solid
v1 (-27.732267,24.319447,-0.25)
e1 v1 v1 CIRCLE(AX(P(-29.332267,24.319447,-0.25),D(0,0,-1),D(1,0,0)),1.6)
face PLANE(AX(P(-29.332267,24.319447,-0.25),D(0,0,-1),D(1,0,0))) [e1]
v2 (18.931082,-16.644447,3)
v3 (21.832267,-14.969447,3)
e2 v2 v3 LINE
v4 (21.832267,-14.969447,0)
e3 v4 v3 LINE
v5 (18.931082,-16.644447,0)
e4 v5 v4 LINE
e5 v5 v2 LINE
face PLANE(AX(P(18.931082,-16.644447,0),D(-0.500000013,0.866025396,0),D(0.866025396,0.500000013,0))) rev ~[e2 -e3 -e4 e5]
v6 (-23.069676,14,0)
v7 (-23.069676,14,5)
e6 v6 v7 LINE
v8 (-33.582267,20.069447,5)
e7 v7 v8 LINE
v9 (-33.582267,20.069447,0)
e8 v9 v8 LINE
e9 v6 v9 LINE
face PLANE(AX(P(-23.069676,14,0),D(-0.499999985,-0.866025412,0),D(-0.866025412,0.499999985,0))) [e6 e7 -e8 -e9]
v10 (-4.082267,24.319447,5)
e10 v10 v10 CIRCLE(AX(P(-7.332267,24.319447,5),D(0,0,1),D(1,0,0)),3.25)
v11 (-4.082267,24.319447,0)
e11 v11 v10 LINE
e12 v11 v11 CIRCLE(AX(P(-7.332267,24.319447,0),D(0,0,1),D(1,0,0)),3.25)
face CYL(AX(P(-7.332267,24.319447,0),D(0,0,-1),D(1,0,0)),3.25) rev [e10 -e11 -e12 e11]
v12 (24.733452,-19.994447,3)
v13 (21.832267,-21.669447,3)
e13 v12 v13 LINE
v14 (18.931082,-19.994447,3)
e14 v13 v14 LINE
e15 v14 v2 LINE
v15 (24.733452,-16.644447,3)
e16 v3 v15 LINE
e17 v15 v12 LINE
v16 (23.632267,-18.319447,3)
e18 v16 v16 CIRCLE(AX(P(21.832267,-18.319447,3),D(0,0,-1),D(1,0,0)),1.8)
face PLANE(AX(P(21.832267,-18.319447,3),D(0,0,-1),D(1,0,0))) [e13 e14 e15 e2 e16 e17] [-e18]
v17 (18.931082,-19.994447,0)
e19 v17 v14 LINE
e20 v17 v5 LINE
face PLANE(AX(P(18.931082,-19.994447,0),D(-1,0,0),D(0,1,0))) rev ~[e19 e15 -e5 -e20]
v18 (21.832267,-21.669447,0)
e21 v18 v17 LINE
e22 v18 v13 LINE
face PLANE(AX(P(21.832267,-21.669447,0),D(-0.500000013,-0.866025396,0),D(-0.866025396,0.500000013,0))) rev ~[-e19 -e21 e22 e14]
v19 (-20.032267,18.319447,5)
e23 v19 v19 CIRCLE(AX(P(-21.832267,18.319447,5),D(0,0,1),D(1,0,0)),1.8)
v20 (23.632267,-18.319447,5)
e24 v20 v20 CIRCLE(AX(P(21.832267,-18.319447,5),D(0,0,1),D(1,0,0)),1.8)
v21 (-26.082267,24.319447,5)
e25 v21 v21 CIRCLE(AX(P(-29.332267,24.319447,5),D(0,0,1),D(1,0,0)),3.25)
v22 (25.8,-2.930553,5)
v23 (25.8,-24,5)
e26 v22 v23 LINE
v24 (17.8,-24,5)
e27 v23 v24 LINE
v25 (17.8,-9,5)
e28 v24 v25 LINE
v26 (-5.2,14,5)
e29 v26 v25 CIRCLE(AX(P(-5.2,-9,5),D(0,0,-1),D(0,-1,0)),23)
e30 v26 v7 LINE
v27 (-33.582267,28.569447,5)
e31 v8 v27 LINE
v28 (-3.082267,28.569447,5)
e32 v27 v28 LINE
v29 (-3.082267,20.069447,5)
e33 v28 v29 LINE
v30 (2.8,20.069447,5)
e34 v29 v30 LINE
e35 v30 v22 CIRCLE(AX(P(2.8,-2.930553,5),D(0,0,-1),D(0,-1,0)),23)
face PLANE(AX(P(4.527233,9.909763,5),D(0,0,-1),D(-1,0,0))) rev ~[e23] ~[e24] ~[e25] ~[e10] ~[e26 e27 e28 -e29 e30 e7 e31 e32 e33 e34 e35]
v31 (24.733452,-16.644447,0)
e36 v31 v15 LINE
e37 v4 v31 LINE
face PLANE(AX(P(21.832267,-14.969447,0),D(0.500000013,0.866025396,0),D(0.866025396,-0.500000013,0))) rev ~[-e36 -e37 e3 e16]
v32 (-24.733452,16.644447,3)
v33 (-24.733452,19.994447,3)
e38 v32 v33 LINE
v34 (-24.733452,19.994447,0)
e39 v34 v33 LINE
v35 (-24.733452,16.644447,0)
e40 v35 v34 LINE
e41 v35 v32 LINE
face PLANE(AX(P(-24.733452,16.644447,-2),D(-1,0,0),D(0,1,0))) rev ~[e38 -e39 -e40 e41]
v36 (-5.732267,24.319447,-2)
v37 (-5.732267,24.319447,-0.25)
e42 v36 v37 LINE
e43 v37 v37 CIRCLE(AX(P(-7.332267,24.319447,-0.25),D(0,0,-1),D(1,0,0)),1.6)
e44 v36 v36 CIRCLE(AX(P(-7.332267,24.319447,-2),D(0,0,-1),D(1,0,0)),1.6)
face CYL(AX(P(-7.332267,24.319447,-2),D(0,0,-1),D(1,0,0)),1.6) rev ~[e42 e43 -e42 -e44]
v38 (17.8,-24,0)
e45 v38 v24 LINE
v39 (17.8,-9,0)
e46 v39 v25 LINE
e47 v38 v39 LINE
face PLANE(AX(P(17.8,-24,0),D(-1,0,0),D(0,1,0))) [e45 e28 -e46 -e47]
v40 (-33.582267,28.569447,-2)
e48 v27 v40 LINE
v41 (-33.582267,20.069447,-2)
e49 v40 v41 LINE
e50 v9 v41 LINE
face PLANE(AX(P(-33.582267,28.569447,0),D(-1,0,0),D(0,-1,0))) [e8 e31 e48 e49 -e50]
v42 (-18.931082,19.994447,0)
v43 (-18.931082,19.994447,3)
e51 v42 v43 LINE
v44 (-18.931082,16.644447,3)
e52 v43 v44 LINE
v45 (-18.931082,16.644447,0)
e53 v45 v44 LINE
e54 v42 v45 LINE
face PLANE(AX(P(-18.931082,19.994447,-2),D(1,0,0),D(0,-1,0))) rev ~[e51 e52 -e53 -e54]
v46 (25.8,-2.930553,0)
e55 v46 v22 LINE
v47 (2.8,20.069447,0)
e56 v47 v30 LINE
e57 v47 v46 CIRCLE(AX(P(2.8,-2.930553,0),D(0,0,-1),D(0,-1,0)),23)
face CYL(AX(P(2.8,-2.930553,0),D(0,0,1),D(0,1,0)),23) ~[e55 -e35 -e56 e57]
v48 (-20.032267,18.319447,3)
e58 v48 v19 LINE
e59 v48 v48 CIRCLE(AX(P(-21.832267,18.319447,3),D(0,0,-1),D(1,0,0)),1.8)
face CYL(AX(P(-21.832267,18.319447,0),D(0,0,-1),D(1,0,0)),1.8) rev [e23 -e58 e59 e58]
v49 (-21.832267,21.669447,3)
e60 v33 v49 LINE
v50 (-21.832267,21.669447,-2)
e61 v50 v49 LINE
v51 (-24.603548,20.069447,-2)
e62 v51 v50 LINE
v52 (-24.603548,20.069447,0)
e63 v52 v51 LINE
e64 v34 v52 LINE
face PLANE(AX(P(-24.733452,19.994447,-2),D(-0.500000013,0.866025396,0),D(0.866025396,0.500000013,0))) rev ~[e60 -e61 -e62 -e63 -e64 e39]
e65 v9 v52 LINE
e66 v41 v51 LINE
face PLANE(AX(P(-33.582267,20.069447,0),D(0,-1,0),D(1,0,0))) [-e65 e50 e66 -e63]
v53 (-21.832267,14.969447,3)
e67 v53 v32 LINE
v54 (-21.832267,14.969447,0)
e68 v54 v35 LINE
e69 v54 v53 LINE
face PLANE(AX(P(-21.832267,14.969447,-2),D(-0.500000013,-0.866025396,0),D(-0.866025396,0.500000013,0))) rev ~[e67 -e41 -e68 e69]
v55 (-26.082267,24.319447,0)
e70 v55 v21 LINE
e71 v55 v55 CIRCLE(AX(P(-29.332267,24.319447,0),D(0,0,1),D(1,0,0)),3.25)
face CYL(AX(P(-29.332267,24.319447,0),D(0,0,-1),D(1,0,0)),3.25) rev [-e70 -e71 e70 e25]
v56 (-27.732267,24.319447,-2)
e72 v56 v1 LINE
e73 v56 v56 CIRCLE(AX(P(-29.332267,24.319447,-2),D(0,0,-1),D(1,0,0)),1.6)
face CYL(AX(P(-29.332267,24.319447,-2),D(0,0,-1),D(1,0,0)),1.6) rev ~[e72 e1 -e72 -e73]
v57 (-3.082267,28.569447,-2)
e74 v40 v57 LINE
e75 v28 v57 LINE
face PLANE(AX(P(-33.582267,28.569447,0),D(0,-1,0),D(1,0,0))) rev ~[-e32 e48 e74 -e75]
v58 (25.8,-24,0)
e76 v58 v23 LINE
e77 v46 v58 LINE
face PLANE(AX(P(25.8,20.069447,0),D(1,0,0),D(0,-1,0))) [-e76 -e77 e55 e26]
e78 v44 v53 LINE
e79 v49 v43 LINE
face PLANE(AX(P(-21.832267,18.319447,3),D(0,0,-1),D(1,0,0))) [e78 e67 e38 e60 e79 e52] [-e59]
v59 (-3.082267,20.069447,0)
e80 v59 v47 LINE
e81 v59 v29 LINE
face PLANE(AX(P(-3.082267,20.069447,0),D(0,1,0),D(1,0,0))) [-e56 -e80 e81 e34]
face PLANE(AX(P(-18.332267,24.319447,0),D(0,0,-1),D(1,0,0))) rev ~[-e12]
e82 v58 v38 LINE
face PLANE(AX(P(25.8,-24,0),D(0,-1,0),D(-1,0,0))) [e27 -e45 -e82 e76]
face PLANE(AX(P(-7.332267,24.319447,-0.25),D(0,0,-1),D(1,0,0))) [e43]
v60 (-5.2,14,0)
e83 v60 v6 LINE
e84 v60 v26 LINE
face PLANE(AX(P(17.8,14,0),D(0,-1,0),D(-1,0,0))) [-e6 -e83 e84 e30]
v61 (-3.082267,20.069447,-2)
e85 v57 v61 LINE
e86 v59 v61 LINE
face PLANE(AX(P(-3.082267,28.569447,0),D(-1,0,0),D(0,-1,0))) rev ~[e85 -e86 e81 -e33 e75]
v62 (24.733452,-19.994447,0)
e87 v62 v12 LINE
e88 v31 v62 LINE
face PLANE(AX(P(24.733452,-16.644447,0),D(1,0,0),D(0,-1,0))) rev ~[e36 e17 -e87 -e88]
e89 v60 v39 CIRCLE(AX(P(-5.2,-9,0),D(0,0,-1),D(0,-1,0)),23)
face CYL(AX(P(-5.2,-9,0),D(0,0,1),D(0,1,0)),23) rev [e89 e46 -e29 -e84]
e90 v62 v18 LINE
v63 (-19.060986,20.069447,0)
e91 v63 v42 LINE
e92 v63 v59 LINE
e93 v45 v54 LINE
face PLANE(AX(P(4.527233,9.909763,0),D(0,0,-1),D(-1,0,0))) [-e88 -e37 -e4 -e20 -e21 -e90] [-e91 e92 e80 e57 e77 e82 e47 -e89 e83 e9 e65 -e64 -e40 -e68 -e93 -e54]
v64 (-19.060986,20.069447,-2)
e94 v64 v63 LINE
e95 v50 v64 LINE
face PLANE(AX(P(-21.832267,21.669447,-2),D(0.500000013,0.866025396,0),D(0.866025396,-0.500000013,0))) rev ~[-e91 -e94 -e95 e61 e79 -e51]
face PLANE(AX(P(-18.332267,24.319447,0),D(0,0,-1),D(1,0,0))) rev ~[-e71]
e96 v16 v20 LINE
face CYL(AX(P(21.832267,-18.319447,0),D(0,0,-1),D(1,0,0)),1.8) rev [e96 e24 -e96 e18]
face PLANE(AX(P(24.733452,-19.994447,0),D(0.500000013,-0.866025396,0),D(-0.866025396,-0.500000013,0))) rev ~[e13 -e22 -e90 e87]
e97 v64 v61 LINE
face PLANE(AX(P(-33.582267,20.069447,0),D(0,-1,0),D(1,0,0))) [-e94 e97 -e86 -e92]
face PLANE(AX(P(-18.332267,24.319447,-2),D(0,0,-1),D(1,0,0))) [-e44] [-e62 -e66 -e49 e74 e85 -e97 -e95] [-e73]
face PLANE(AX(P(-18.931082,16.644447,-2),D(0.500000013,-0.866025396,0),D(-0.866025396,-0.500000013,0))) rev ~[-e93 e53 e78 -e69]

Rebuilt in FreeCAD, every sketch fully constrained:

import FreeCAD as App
import Part
import Sketcher
Q = App.Units.Quantity


def edges_at(feature, points):
    """Names of the edges that pass closest to the given points."""
    edges = feature.Shape.Edges
    near = lambda p: min(range(len(edges)), key=lambda i: edges[i].distToShape(Part.Vertex(*p))[0])
    return sorted({f"Edge{near(p) + 1}" for p in points})

doc = App.newDocument("Part")
params = doc.addObject("Spreadsheet::Sheet", "Params")
for row, (alias, value) in enumerate([
    ("sketch1_diameter", "3.6 mm"),
    ("sketch1_diameter2", "6.5 mm"),
    ("sketch1_width", "8 mm"),
    ("sketch1_height", "38 mm"),
    ("sketch1_width2", "30.5 mm"),
    ("pad1_length", "5 mm"),
    ("fillet_radius", "23 mm"),
    ("sketch2_width", "30.5 mm"),
    ("sketch2_height", "8.5 mm"),
    ("pad2_length", "2 mm"),
    ("sketch3_diameter", "3.2 mm"),
    ("pocket1_length", "1.75 mm"),
    ("sketch4_height", "3.35 mm"),
    ("pocket2_length", "3 mm"),
    ("sketch5_height", "3.35 mm"),
    ("pocket3_length", "5 mm"),
], start=1):
    params.set(f"A{row}", alias)
    params.set(f"B{row}", "=" + value)
    params.setAlias(f"B{row}", alias)

body = doc.addObject("PartDesign::Body", "Body")

sketch1 = body.newObject("Sketcher::SketchObject", "Sketch")
sketch1.AttachmentSupport = (doc.getObject("XY_Plane"), [""])
sketch1.MapMode = "FlatFace"
sketch1.addGeometry([
    Part.LineSegment(App.Vector(-3.1, 28.6, 0), App.Vector(-33.6, 28.6, 0)),
    Part.LineSegment(App.Vector(-33.6, 28.6, 0), App.Vector(-33.6, 20.1, 0)),
    Part.LineSegment(App.Vector(-33.6, 20.1, 0), App.Vector(-23.1, 14, 0)),
    Part.LineSegment(App.Vector(-23.1, 14, 0), App.Vector(17.8, 14, 0)),
    Part.LineSegment(App.Vector(17.8, 14, 0), App.Vector(17.8, -24, 0)),
    Part.LineSegment(App.Vector(17.8, -24, 0), App.Vector(25.8, -24, 0)),
    Part.LineSegment(App.Vector(25.8, -24, 0), App.Vector(25.8, 20.1, 0)),
    Part.LineSegment(App.Vector(25.8, 20.1, 0), App.Vector(-3.1, 20.1, 0)),
    Part.LineSegment(App.Vector(-3.1, 20.1, 0), App.Vector(-3.1, 28.6, 0)),
    Part.Circle(App.Vector(21.8, -18.3, 0), App.Vector(0, 0, 1), 1.8),
    Part.Circle(App.Vector(-7.3, 24.3, 0), App.Vector(0, 0, 1), 3.2),
    Part.Circle(App.Vector(-21.8, 18.3, 0), App.Vector(0, 0, 1), 1.8),
    Part.Circle(App.Vector(-29.3, 24.3, 0), App.Vector(0, 0, 1), 3.2),
], False)
sketch1.addConstraint([
    Sketcher.Constraint("Coincident", 0, 2, 1, 1),
    Sketcher.Constraint("Coincident", 1, 2, 2, 1),
    Sketcher.Constraint("Coincident", 2, 2, 3, 1),
    Sketcher.Constraint("Coincident", 3, 2, 4, 1),
    Sketcher.Constraint("Coincident", 4, 2, 5, 1),
    Sketcher.Constraint("Coincident", 5, 2, 6, 1),
    Sketcher.Constraint("Coincident", 6, 2, 7, 1),
    Sketcher.Constraint("Coincident", 7, 2, 8, 1),
    Sketcher.Constraint("Coincident", 8, 2, 0, 1),
    Sketcher.Constraint("Horizontal", 0),
    Sketcher.Constraint("Vertical", 1),
    Sketcher.Constraint("Horizontal", 3),
    Sketcher.Constraint("Vertical", 4),
    Sketcher.Constraint("Horizontal", 5),
    Sketcher.Constraint("Vertical", 6),
    Sketcher.Constraint("Horizontal", 7),
    Sketcher.Constraint("Vertical", 8),
    Sketcher.Constraint("Equal", 9, 11),
    Sketcher.Constraint("Equal", 10, 12),
    Sketcher.Constraint("Symmetric", 9, 3, 11, 3, -1, 1),
    Sketcher.Constraint("Horizontal", 10, 3, 12, 3),
    Sketcher.Constraint("Horizontal", 1, 2, 6, 2),
    Sketcher.Constraint("Diameter", 9, 3.6),
    Sketcher.Constraint("Diameter", 10, 6.5),
    Sketcher.Constraint("DistanceX", 5, 1, 5, 2, 8.0),
    Sketcher.Constraint("DistanceY", 4, 2, 4, 1, 38.0),
    Sketcher.Constraint("Angle", 2, Q("-29.999999 deg")),
    Sketcher.Constraint("DistanceX", 0, 2, 0, 1, 30.5),
    Sketcher.Constraint("DistanceY", 1, 2, 1, 1, 8.5),
    Sketcher.Constraint("DistanceY", -1, 1, 2, 2, 14.0),
    Sketcher.Constraint("DistanceY", 11, 3, 10, 3, 6.0),
    Sketcher.Constraint("DistanceX", 12, 3, 10, 3, 22.0),
    Sketcher.Constraint("DistanceX", -1, 1, 3, 2, 17.8),
    Sketcher.Constraint("DistanceX", 11, 3, 10, 3, 14.5),
    Sketcher.Constraint("DistanceX", 0, 2, 12, 3, 4.25),
    Sketcher.Constraint("DistanceY", 12, 3, 0, 2, 4.25),
    Sketcher.Constraint("DistanceX", 3, 1, 3, 2, 40.869676),
    Sketcher.Constraint("DistanceX", 7, 2, 7, 1, 28.882267),
])
sketch1.setExpression("Constraints[22]", "Params.sketch1_diameter")
sketch1.setExpression("Constraints[23]", "Params.sketch1_diameter2")
sketch1.setExpression("Constraints[24]", "Params.sketch1_width")
sketch1.setExpression("Constraints[25]", "Params.sketch1_height")
sketch1.setExpression("Constraints[27]", "Params.sketch1_width2")
pad1 = body.newObject("PartDesign::Pad", "Pad")
pad1.Profile = sketch1
pad1.setExpression("Length", "Params.pad1_length")
doc.recompute()

fillet = body.newObject("PartDesign::Fillet", "Fillet")
fillet.Base = (pad1, edges_at(pad1, [(25.8, 20.069, 2.5), (17.8, 14, 2.5)]))
fillet.setExpression("Radius", "Params.fillet_radius")

sketch2 = body.newObject("Sketcher::SketchObject", "Sketch001")
sketch2.AttachmentSupport = (doc.getObject("XY_Plane"), [""])
sketch2.MapMode = "FlatFace"
sketch2.addGeometry([
    Part.LineSegment(App.Vector(-34, 20, 0), App.Vector(-34, 29, 0)),
    Part.LineSegment(App.Vector(-34, 29, 0), App.Vector(-3, 29, 0)),
    Part.LineSegment(App.Vector(-3, 29, 0), App.Vector(-3, 20, 0)),
    Part.LineSegment(App.Vector(-3, 20, 0), App.Vector(-34, 20, 0)),
], False)
sketch2.addConstraint([
    Sketcher.Constraint("Coincident", 0, 2, 1, 1),
    Sketcher.Constraint("Coincident", 1, 2, 2, 1),
    Sketcher.Constraint("Coincident", 2, 2, 3, 1),
    Sketcher.Constraint("Coincident", 3, 2, 0, 1),
    Sketcher.Constraint("Vertical", 0),
    Sketcher.Constraint("Horizontal", 1),
    Sketcher.Constraint("Vertical", 2),
    Sketcher.Constraint("Horizontal", 3),
    Sketcher.Constraint("DistanceX", 1, 1, 1, 2, 30.5),
    Sketcher.Constraint("DistanceY", 0, 1, 0, 2, 8.5),
    Sketcher.Constraint("DistanceX", 0, 2, -1, 1, 33.582267),
    Sketcher.Constraint("DistanceY", -1, 1, 0, 2, 28.569447),
])
sketch2.setExpression("Constraints[8]", "Params.sketch2_width")
sketch2.setExpression("Constraints[9]", "Params.sketch2_height")
pad2 = body.newObject("PartDesign::Pad", "Pad001")
pad2.Profile = sketch2
pad2.setExpression("Length", "Params.pad2_length")
pad2.Reversed = True

sketch3 = body.newObject("Sketcher::SketchObject", "Sketch002")
sketch3.AttachmentSupport = (doc.getObject("XY_Plane"), [""])
sketch3.MapMode = "FlatFace"
sketch3.AttachmentOffset = App.Placement(App.Vector(0, 0, -2), App.Rotation())
sketch3.addGeometry([
    Part.Circle(App.Vector(-29.3, 24.3, 0), App.Vector(0, 0, 1), 1.6),
    Part.Circle(App.Vector(-7.3, 24.3, 0), App.Vector(0, 0, 1), 1.6),
], False)
sketch3.addConstraint([
    Sketcher.Constraint("Equal", 0, 1),
    Sketcher.Constraint("Horizontal", 0, 3, 1, 3),
    Sketcher.Constraint("Diameter", 0, 3.2),
    Sketcher.Constraint("DistanceX", 0, 3, 1, 3, 22.0),
    Sketcher.Constraint("DistanceX", 0, 3, -1, 1, 29.332267),
    Sketcher.Constraint("DistanceY", -1, 1, 0, 3, 24.319447),
])
sketch3.setExpression("Constraints[2]", "Params.sketch3_diameter")
pocket1 = body.newObject("PartDesign::Pocket", "Pocket")
pocket1.Profile = sketch3
pocket1.setExpression("Length", "Params.pocket1_length")
pocket1.Reversed = True

sketch4 = body.newObject("Sketcher::SketchObject", "Sketch003")
sketch4.AttachmentSupport = (doc.getObject("XY_Plane"), [""])
sketch4.MapMode = "FlatFace"
sketch4.addGeometry([
    Part.LineSegment(App.Vector(24.7, -16.6, 0), App.Vector(24.7, -20, 0)),
    Part.LineSegment(App.Vector(24.7, -20, 0), App.Vector(21.8, -21.7, 0)),
    Part.LineSegment(App.Vector(21.8, -21.7, 0), App.Vector(18.9, -20, 0)),
    Part.LineSegment(App.Vector(18.9, -20, 0), App.Vector(18.9, -16.6, 0)),
    Part.LineSegment(App.Vector(18.9, -16.6, 0), App.Vector(21.8, -15, 0)),
    Part.LineSegment(App.Vector(21.8, -15, 0), App.Vector(24.7, -16.6, 0)),
], False)
sketch4.addConstraint([
    Sketcher.Constraint("Coincident", 0, 2, 1, 1),
    Sketcher.Constraint("Coincident", 1, 2, 2, 1),
    Sketcher.Constraint("Coincident", 2, 2, 3, 1),
    Sketcher.Constraint("Coincident", 3, 2, 4, 1),
    Sketcher.Constraint("Coincident", 4, 2, 5, 1),
    Sketcher.Constraint("Coincident", 5, 2, 0, 1),
    Sketcher.Constraint("Vertical", 0),
    Sketcher.Constraint("Vertical", 3),
    Sketcher.Constraint("Parallel", 1, 4),
    Sketcher.Constraint("Parallel", 2, 5),
    Sketcher.Constraint("Horizontal", 0, 2, 2, 2),
    Sketcher.Constraint("Horizontal", 3, 2, 5, 2),
    Sketcher.Constraint("Vertical", 1, 2, 4, 2),
    Sketcher.Constraint("Angle", 1, Q("-149.999999 deg")),
    Sketcher.Constraint("DistanceY", 0, 2, 0, 1, 3.35),
    Sketcher.Constraint("DistanceY", 1, 2, 4, 2, 6.7),
    Sketcher.Constraint("DistanceX", -1, 1, 0, 2, 24.733452),
    Sketcher.Constraint("DistanceY", 0, 2, -1, 1, 19.994447),
])
sketch4.setExpression("Constraints[14]", "Params.sketch4_height")
pocket2 = body.newObject("PartDesign::Pocket", "Pocket001")
pocket2.Profile = sketch4
pocket2.setExpression("Length", "Params.pocket2_length")
pocket2.Reversed = True

sketch5 = body.newObject("Sketcher::SketchObject", "Sketch004")
sketch5.AttachmentSupport = (doc.getObject("XY_Plane"), [""])
sketch5.MapMode = "FlatFace"
sketch5.AttachmentOffset = App.Placement(App.Vector(0, 0, -2), App.Rotation())
sketch5.addGeometry([
    Part.LineSegment(App.Vector(-18.9, 20, 0), App.Vector(-18.9, 16.6, 0)),
    Part.LineSegment(App.Vector(-18.9, 16.6, 0), App.Vector(-21.8, 15, 0)),
    Part.LineSegment(App.Vector(-21.8, 15, 0), App.Vector(-24.7, 16.6, 0)),
    Part.LineSegment(App.Vector(-24.7, 16.6, 0), App.Vector(-24.7, 20, 0)),
    Part.LineSegment(App.Vector(-24.7, 20, 0), App.Vector(-21.8, 21.7, 0)),
    Part.LineSegment(App.Vector(-21.8, 21.7, 0), App.Vector(-18.9, 20, 0)),
], False)
sketch5.addConstraint([
    Sketcher.Constraint("Coincident", 0, 2, 1, 1),
    Sketcher.Constraint("Coincident", 1, 2, 2, 1),
    Sketcher.Constraint("Coincident", 2, 2, 3, 1),
    Sketcher.Constraint("Coincident", 3, 2, 4, 1),
    Sketcher.Constraint("Coincident", 4, 2, 5, 1),
    Sketcher.Constraint("Coincident", 5, 2, 0, 1),
    Sketcher.Constraint("Vertical", 0),
    Sketcher.Constraint("Vertical", 3),
    Sketcher.Constraint("Parallel", 1, 4),
    Sketcher.Constraint("Parallel", 2, 5),
    Sketcher.Constraint("Horizontal", 0, 2, 2, 2),
    Sketcher.Constraint("Horizontal", 3, 2, 5, 2),
    Sketcher.Constraint("Vertical", 1, 2, 4, 2),
    Sketcher.Constraint("Angle", 1, Q("-149.999999 deg")),
    Sketcher.Constraint("DistanceY", 0, 2, 0, 1, 3.35),
    Sketcher.Constraint("DistanceY", 1, 2, 4, 2, 6.7),
    Sketcher.Constraint("DistanceX", 0, 2, -1, 1, 18.931082),
    Sketcher.Constraint("DistanceY", -1, 1, 0, 2, 16.644447),
])
sketch5.setExpression("Constraints[14]", "Params.sketch5_height")
pocket3 = body.newObject("PartDesign::Pocket", "Pocket002")
pocket3.Profile = sketch5
pocket3.setExpression("Length", "Params.pocket3_length")
pocket3.Reversed = True

doc.recompute()
